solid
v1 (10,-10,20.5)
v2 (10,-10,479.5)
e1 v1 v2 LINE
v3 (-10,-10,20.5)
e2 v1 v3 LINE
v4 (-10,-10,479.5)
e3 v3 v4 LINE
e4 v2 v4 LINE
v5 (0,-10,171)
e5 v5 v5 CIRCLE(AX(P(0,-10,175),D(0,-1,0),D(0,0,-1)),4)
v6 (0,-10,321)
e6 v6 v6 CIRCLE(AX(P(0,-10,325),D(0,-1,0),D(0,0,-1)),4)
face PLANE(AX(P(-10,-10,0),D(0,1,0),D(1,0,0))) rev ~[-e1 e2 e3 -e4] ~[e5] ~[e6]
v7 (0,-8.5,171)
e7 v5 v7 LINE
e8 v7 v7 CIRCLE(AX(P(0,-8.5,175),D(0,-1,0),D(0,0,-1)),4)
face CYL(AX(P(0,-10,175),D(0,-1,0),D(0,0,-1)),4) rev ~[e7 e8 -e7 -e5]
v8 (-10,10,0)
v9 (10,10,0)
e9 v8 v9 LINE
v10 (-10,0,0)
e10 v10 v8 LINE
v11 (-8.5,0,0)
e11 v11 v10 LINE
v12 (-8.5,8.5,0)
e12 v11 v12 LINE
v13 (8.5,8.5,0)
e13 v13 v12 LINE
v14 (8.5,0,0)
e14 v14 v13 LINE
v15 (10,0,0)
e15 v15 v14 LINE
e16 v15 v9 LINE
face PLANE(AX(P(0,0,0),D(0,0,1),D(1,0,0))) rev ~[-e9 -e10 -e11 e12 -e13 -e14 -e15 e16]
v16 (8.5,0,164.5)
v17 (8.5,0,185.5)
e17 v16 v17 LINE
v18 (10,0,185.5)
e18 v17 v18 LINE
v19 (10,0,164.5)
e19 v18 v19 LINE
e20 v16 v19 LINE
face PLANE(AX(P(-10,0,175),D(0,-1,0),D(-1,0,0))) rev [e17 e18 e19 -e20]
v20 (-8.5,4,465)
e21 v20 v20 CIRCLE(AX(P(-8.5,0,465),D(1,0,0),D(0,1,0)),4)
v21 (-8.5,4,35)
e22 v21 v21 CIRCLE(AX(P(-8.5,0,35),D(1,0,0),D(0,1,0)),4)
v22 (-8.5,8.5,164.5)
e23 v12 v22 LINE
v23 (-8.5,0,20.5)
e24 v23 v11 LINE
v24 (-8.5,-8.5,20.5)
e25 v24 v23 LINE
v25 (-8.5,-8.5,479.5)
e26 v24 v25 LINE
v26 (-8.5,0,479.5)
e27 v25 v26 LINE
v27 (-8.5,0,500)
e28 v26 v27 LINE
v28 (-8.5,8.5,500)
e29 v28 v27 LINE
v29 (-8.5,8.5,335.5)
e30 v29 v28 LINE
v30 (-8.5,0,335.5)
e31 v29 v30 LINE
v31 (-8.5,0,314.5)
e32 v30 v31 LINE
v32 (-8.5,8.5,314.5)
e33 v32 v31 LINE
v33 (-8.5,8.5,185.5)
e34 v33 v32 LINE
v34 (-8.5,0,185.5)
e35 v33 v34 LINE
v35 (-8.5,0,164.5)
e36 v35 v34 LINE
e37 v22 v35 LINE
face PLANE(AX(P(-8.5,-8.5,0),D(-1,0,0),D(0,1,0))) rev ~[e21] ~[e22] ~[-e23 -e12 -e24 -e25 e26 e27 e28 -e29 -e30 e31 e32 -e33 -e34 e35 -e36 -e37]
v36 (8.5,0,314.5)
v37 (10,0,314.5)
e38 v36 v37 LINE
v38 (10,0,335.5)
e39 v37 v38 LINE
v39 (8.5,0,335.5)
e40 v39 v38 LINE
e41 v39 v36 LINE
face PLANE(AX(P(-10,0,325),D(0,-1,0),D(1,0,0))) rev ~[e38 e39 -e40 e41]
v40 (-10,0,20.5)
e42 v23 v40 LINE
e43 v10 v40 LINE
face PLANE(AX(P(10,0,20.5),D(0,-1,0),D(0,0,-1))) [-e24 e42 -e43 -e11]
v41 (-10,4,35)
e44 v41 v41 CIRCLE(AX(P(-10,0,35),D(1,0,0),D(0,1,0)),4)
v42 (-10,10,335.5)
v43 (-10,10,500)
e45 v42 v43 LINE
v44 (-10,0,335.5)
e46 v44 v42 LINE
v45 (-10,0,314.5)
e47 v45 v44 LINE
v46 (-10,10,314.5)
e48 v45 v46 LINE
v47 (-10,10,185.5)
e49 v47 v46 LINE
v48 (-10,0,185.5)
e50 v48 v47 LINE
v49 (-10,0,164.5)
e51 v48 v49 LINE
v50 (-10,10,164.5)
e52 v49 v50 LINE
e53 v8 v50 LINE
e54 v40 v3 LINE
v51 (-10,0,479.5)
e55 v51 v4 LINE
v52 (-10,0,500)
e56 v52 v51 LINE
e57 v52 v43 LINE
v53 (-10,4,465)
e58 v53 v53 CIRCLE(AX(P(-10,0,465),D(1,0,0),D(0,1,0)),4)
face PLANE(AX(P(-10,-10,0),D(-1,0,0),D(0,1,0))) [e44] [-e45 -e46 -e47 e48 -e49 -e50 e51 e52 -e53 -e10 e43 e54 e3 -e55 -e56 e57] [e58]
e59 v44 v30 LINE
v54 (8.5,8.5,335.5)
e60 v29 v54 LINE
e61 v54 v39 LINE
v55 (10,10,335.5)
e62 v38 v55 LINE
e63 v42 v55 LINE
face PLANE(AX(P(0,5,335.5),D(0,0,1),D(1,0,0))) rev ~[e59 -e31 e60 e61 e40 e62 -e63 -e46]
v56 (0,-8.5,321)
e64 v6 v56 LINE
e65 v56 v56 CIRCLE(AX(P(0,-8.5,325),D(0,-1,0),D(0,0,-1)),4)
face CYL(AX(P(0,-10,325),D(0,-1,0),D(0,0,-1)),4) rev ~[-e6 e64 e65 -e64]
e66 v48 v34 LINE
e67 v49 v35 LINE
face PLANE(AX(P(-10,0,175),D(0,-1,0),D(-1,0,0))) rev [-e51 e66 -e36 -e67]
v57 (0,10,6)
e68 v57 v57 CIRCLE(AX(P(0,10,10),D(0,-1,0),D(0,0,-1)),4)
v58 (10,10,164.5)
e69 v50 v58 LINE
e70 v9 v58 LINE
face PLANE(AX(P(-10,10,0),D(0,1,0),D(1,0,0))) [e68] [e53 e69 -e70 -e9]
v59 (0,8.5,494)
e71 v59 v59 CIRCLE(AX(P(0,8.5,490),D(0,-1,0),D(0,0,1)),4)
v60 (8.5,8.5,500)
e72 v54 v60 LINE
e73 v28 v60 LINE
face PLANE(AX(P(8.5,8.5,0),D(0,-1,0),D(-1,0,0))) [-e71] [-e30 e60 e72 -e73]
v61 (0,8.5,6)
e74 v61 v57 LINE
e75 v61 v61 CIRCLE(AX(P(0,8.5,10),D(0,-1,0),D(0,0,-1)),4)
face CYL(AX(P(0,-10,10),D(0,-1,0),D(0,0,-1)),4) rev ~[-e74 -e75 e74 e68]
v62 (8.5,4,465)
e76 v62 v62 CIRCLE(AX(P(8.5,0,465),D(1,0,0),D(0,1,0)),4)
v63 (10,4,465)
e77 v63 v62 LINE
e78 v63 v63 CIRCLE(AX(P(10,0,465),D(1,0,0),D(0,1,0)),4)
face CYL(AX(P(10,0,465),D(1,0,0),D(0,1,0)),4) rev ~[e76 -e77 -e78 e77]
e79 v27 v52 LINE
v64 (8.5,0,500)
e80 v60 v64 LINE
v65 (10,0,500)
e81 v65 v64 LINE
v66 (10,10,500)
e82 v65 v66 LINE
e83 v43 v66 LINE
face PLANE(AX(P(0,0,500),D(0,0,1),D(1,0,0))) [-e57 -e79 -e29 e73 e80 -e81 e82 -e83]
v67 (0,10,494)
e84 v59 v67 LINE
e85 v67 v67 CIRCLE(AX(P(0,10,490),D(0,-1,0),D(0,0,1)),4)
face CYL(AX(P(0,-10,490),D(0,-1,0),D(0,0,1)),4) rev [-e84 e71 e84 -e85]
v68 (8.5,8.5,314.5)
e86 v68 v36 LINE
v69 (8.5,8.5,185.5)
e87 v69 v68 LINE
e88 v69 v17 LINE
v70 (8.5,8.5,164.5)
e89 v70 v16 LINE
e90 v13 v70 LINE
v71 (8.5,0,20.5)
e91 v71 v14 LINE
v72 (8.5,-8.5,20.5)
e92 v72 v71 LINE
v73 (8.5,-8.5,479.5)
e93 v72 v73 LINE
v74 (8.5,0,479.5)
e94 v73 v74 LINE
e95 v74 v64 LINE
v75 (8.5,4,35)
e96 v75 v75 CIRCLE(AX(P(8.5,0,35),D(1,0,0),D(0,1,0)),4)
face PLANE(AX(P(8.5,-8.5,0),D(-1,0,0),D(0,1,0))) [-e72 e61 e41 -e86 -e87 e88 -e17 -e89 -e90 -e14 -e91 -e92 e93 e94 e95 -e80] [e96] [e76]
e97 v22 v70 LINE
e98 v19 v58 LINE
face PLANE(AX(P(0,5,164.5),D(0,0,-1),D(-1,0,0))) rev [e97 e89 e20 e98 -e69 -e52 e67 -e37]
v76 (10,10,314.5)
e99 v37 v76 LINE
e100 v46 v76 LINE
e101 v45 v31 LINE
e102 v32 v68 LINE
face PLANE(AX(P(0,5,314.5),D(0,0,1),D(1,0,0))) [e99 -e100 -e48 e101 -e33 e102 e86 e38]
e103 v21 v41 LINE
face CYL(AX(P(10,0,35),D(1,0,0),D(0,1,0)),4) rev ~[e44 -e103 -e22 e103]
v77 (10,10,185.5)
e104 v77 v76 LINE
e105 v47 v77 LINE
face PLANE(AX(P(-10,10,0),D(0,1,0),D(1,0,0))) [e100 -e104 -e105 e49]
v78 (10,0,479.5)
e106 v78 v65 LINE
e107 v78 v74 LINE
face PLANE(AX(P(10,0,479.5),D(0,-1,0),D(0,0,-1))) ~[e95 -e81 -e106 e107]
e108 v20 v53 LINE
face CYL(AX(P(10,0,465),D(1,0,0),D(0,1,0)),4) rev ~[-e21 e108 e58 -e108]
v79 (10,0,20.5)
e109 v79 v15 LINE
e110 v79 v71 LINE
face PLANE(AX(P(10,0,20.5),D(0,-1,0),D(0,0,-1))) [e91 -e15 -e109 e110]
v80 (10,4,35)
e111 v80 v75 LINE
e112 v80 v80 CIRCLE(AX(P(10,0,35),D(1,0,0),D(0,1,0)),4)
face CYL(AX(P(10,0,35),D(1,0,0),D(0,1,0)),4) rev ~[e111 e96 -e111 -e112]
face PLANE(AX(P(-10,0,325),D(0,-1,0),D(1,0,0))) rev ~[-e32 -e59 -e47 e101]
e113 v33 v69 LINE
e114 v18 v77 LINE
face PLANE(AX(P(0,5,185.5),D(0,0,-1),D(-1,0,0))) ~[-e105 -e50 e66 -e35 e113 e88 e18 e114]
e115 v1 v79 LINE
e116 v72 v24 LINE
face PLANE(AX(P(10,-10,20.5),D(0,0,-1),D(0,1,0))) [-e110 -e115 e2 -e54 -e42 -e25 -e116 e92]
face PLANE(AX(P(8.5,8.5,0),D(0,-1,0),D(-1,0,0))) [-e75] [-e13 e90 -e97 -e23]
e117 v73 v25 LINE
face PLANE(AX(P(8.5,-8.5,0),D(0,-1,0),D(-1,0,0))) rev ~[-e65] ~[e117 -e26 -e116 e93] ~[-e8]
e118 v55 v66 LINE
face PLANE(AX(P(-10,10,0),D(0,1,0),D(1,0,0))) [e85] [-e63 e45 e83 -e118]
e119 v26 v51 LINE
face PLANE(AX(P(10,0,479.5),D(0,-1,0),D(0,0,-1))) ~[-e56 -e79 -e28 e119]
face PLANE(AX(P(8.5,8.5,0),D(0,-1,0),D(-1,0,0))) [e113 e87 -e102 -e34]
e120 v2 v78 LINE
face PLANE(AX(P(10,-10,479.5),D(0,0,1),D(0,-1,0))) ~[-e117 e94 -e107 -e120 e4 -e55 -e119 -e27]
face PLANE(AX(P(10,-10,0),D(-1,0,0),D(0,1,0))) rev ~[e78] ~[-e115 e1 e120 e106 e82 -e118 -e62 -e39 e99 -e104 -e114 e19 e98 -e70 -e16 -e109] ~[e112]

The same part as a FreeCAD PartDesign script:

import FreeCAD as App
import Part
import Sketcher
from FreeCAD import Vector
Q = App.Units.Quantity

doc = App.newDocument("Part")
body = doc.addObject("PartDesign::Body", "Body")

# Sketch on XY plane
sketch1 = body.newObject("Sketcher::SketchObject", "Sketch")
sketch1.AttachmentSupport = (doc.getObject("XY_Plane"), [""])
sketch1.MapMode = "FlatFace"
sketch1.addGeometry([
    Part.LineSegment(Vector(-10, 10, 0), Vector(-10, -10, 0)),
    Part.LineSegment(Vector(-10, -10, 0), Vector(10, -10, 0)),
    Part.LineSegment(Vector(10, -10, 0), Vector(10, 10, 0)),
    Part.LineSegment(Vector(10, 10, 0), Vector(-10, 10, 0)),
], False)
sketch1.addConstraint([
    Sketcher.Constraint("Coincident", 0, 2, 1, 1),
    Sketcher.Constraint("Coincident", 1, 2, 2, 1),
    Sketcher.Constraint("Coincident", 2, 2, 3, 1),
    Sketcher.Constraint("Coincident", 3, 2, 0, 1),
    Sketcher.Constraint("Vertical", 0),
    Sketcher.Constraint("Horizontal", 1),
    Sketcher.Constraint("Vertical", 2),
    Sketcher.Constraint("Horizontal", 3),
    Sketcher.Constraint("Symmetric", 0, 2, 2, 2, -1, 1),
    Sketcher.Constraint("Equal", 3, 0),
    Sketcher.Constraint("DistanceX", 1, 1, 1, 2, Q("20 mm")),
])
pad1 = body.newObject("PartDesign::Pad", "Pad")
pad1.Profile = sketch1
pad1.Length = 500

# Sketch on XY plane
sketch2 = body.newObject("Sketcher::SketchObject", "Sketch001")
sketch2.AttachmentSupport = (doc.getObject("XY_Plane"), [""])
sketch2.MapMode = "FlatFace"
sketch2.AttachmentOffset = App.Placement(Vector(0, 0, 325), App.Rotation())
sketch2.addGeometry([
    Part.LineSegment(Vector(-10, 10, 0), Vector(-10, 0, 0)),
    Part.LineSegment(Vector(-10, 0, 0), Vector(10, 0, 0)),
    Part.LineSegment(Vector(10, 0, 0), Vector(10, 10, 0)),
    Part.LineSegment(Vector(10, 10, 0), Vector(-10, 10, 0)),
], False)
sketch2.addConstraint([
    Sketcher.Constraint("Coincident", 0, 2, 1, 1),
    Sketcher.Constraint("Coincident", 1, 2, 2, 1),
    Sketcher.Constraint("Coincident", 2, 2, 3, 1),
    Sketcher.Constraint("Coincident", 3, 2, 0, 1),
    Sketcher.Constraint("Vertical", 0),
    Sketcher.Constraint("Horizontal", 1),
    Sketcher.Constraint("Vertical", 2),
    Sketcher.Constraint("Horizontal", 3),
    Sketcher.Constraint("Symmetric", 0, 2, 1, 2, -1, 1),
    Sketcher.Constraint("DistanceX", 1, 1, 1, 2, Q("20 mm")),
    Sketcher.Constraint("DistanceY", 0, 2, 0, 1, Q("10 mm")),
])
pocket1 = body.newObject("PartDesign::Pocket", "Pocket")
pocket1.Profile = sketch2
pocket1.Length = 21
pocket1.Midplane = True
doc.recompute()

datumplane = body.newObject("PartDesign::Plane", "DatumPlane")
datumplane.AttachmentSupport = (doc.getObject("XY_Plane"), [""])
datumplane.MapMode = "FlatFace"
datumplane.AttachmentOffset = App.Placement(Vector(0, 0, 250), App.Rotation())
mirrored = body.newObject("PartDesign::Mirrored", "Mirrored")
mirrored.Originals = [pocket1]
mirrored.MirrorPlane = (datumplane, [""])
body.Tip = mirrored

# Sketch on XZ plane
sketch3 = body.newObject("Sketcher::SketchObject", "Sketch002")
sketch3.AttachmentSupport = (doc.getObject("XZ_Plane"), [""])
sketch3.MapMode = "FlatFace"
sketch3.AttachmentOffset = App.Placement(Vector(0, 0, 10), App.Rotation())
sketch3.addGeometry([
    Part.Circle(Vector(0, 325, 0), Vector(0, 0, 1), 4),
    Part.Circle(Vector(0, 175, 0), Vector(0, 0, 1), 4),
], False)
sketch3.addConstraint([
    Sketcher.Constraint("Equal", 0, 1),
    Sketcher.Constraint("PointOnObject", 0, 3, -2),
    Sketcher.Constraint("PointOnObject", 1, 3, -2),
    Sketcher.Constraint("Diameter", 0, Q("8 mm")),
    Sketcher.Constraint("DistanceY", -1, 1, 0, 3, Q("325 mm")),
    Sketcher.Constraint("DistanceY", -1, 1, 1, 3, Q("175 mm")),
])
pocket2 = body.newObject("PartDesign::Pocket", "Pocket001")
pocket2.Profile = sketch3
pocket2.Length = 21

# Sketch on YZ plane
sketch4 = body.newObject("Sketcher::SketchObject", "Sketch003")
sketch4.AttachmentSupport = (doc.getObject("YZ_Plane"), [""])
sketch4.MapMode = "FlatFace"
sketch4.AttachmentOffset = App.Placement(Vector(0, 0, 10), App.Rotation())
sketch4.addGeometry([
    Part.LineSegment(Vector(0, 20.5, 0), Vector(-10, 20.5, 0)),
    Part.LineSegment(Vector(-10, 20.5, 0), Vector(-10, 0, 0)),
    Part.LineSegment(Vector(-10, 0, 0), Vector(0, 0, 0)),
    Part.LineSegment(Vector(0, 0, 0), Vector(0, 20.5, 0)),
], False)
sketch4.addConstraint([
    Sketcher.Constraint("Coincident", 0, 2, 1, 1),
    Sketcher.Constraint("Coincident", 1, 2, 2, 1),
    Sketcher.Constraint("Coincident", 2, 2, 3, 1),
    Sketcher.Constraint("Coincident", 3, 2, 0, 1),
    Sketcher.Constraint("Horizontal", 0),
    Sketcher.Constraint("Vertical", 1),
    Sketcher.Constraint("Horizontal", 2),
    Sketcher.Constraint("Vertical", 3),
    Sketcher.Constraint("Coincident", 2, 2, -1, 1),
    Sketcher.Constraint("DistanceX", 0, 2, 0, 1, Q("10 mm")),
    Sketcher.Constraint("DistanceY", 1, 2, 1, 1, Q("20.5 mm")),
])
pocket3 = body.newObject("PartDesign::Pocket", "Pocket002")
pocket3.Profile = sketch4
pocket3.Length = 21

# Sketch on XZ plane
sketch5 = body.newObject("Sketcher::SketchObject", "Sketch004")
sketch5.AttachmentSupport = (doc.getObject("XZ_Plane"), [""])
sketch5.MapMode = "FlatFace"
sketch5.AttachmentOffset = App.Placement(Vector(0, 0, 10), App.Rotation())
sketch5.addGeometry([
    Part.Circle(Vector(0, 10, 0), Vector(0, 0, 1), 4),
    Part.Circle(Vector(0, 510.5, 0), Vector(0, 0, 1), 4),
], False)
sketch5.addConstraint([
    Sketcher.Constraint("Equal", 0, 1),
    Sketcher.Constraint("PointOnObject", 0, 3, -2),
    Sketcher.Constraint("PointOnObject", 1, 3, -2),
    Sketcher.Constraint("Diameter", 0, Q("8 mm")),
    Sketcher.Constraint("DistanceY", -1, 1, 0, 3, Q("10 mm")),
    Sketcher.Constraint("DistanceY", -1, 1, 1, 3, Q("510.5 mm")),
])
pocket4 = body.newObject("PartDesign::Pocket", "Pocket003")
pocket4.Profile = sketch5
pocket4.Length = 21
doc.recompute()

datumplane2 = body.newObject("PartDesign::Plane", "DatumPlane001")
datumplane2.AttachmentSupport = (doc.getObject("XY_Plane"), [""])
datumplane2.MapMode = "FlatFace"
datumplane2.AttachmentOffset = App.Placement(Vector(0, 0, 250), App.Rotation())
mirrored2 = body.newObject("PartDesign::Mirrored", "Mirrored001")
mirrored2.Originals = [pocket3]
mirrored2.MirrorPlane = (datumplane2, [""])
body.Tip = mirrored2
doc.recompute()

datumplane3 = body.newObject("PartDesign::Plane", "DatumPlane002")
datumplane3.AttachmentSupport = (doc.getObject("XY_Plane"), [""])
datumplane3.MapMode = "FlatFace"
datumplane3.AttachmentOffset = App.Placement(Vector(0, 0, 250), App.Rotation())
mirrored3 = body.newObject("PartDesign::Mirrored", "Mirrored002")
mirrored3.Originals = [pocket4]
mirrored3.MirrorPlane = (datumplane3, [""])
body.Tip = mirrored3

# Sketch on YZ plane
sketch6 = body.newObject("Sketcher::SketchObject", "Sketch005")
sketch6.AttachmentSupport = (doc.getObject("YZ_Plane"), [""])
sketch6.MapMode = "FlatFace"
sketch6.AttachmentOffset = App.Placement(Vector(0, 0, 10), App.Rotation())
sketch6.addGeometry([
    Part.Circle(Vector(0, 35, 0), Vector(0, 0, 1), 4),
    Part.Circle(Vector(0, 465, 0), Vector(0, 0, 1), 4),
], False)
sketch6.addConstraint([
    Sketcher.Constraint("Equal", 0, 1),
    Sketcher.Constraint("PointOnObject", 0, 3, -2),
    Sketcher.Constraint("PointOnObject", 1, 3, -2),
    Sketcher.Constraint("Diameter", 0, Q("8 mm")),
    Sketcher.Constraint("DistanceY", -1, 1, 0, 3, Q("35 mm")),
    Sketcher.Constraint("DistanceY", -1, 1, 1, 3, Q("465 mm")),
])
pocket5 = body.newObject("PartDesign::Pocket", "Pocket004")
pocket5.Profile = sketch6
pocket5.Type = "ThroughAll"

# Sketch on XY plane
sketch7 = body.newObject("Sketcher::SketchObject", "Sketch006")
sketch7.AttachmentSupport = (doc.getObject("XY_Plane"), [""])
sketch7.MapMode = "FlatFace"
sketch7.addGeometry([
    Part.LineSegment(Vector(8.5, 8.5, 0), Vector(8.5, -8.5, 0)),
    Part.LineSegment(Vector(8.5, -8.5, 0), Vector(-8.5, -8.5, 0)),
    Part.LineSegment(Vector(-8.5, -8.5, 0), Vector(-8.5, 8.5, 0)),
    Part.LineSegment(Vector(-8.5, 8.5, 0), Vector(8.5, 8.5, 0)),
], False)
sketch7.addConstraint([
    Sketcher.Constraint("Coincident", 0, 2, 1, 1),
    Sketcher.Constraint("Coincident", 1, 2, 2, 1),
    Sketcher.Constraint("Coincident", 2, 2, 3, 1),
    Sketcher.Constraint("Coincident", 3, 2, 0, 1),
    Sketcher.Constraint("Vertical", 0),
    Sketcher.Constraint("Horizontal", 1),
    Sketcher.Constraint("Vertical", 2),
    Sketcher.Constraint("Horizontal", 3),
    Sketcher.Constraint("Symmetric", 0, 2, 2, 2, -1, 1),
    Sketcher.Constraint("Equal", 3, 0),
    Sketcher.Constraint("DistanceX", 1, 2, 1, 1, Q("17 mm")),
])
pocket6 = body.newObject("PartDesign::Pocket", "Pocket005")
pocket6.Profile = sketch7
pocket6.Type = "ThroughAll"
pocket6.Reversed = True

doc.recompute()
